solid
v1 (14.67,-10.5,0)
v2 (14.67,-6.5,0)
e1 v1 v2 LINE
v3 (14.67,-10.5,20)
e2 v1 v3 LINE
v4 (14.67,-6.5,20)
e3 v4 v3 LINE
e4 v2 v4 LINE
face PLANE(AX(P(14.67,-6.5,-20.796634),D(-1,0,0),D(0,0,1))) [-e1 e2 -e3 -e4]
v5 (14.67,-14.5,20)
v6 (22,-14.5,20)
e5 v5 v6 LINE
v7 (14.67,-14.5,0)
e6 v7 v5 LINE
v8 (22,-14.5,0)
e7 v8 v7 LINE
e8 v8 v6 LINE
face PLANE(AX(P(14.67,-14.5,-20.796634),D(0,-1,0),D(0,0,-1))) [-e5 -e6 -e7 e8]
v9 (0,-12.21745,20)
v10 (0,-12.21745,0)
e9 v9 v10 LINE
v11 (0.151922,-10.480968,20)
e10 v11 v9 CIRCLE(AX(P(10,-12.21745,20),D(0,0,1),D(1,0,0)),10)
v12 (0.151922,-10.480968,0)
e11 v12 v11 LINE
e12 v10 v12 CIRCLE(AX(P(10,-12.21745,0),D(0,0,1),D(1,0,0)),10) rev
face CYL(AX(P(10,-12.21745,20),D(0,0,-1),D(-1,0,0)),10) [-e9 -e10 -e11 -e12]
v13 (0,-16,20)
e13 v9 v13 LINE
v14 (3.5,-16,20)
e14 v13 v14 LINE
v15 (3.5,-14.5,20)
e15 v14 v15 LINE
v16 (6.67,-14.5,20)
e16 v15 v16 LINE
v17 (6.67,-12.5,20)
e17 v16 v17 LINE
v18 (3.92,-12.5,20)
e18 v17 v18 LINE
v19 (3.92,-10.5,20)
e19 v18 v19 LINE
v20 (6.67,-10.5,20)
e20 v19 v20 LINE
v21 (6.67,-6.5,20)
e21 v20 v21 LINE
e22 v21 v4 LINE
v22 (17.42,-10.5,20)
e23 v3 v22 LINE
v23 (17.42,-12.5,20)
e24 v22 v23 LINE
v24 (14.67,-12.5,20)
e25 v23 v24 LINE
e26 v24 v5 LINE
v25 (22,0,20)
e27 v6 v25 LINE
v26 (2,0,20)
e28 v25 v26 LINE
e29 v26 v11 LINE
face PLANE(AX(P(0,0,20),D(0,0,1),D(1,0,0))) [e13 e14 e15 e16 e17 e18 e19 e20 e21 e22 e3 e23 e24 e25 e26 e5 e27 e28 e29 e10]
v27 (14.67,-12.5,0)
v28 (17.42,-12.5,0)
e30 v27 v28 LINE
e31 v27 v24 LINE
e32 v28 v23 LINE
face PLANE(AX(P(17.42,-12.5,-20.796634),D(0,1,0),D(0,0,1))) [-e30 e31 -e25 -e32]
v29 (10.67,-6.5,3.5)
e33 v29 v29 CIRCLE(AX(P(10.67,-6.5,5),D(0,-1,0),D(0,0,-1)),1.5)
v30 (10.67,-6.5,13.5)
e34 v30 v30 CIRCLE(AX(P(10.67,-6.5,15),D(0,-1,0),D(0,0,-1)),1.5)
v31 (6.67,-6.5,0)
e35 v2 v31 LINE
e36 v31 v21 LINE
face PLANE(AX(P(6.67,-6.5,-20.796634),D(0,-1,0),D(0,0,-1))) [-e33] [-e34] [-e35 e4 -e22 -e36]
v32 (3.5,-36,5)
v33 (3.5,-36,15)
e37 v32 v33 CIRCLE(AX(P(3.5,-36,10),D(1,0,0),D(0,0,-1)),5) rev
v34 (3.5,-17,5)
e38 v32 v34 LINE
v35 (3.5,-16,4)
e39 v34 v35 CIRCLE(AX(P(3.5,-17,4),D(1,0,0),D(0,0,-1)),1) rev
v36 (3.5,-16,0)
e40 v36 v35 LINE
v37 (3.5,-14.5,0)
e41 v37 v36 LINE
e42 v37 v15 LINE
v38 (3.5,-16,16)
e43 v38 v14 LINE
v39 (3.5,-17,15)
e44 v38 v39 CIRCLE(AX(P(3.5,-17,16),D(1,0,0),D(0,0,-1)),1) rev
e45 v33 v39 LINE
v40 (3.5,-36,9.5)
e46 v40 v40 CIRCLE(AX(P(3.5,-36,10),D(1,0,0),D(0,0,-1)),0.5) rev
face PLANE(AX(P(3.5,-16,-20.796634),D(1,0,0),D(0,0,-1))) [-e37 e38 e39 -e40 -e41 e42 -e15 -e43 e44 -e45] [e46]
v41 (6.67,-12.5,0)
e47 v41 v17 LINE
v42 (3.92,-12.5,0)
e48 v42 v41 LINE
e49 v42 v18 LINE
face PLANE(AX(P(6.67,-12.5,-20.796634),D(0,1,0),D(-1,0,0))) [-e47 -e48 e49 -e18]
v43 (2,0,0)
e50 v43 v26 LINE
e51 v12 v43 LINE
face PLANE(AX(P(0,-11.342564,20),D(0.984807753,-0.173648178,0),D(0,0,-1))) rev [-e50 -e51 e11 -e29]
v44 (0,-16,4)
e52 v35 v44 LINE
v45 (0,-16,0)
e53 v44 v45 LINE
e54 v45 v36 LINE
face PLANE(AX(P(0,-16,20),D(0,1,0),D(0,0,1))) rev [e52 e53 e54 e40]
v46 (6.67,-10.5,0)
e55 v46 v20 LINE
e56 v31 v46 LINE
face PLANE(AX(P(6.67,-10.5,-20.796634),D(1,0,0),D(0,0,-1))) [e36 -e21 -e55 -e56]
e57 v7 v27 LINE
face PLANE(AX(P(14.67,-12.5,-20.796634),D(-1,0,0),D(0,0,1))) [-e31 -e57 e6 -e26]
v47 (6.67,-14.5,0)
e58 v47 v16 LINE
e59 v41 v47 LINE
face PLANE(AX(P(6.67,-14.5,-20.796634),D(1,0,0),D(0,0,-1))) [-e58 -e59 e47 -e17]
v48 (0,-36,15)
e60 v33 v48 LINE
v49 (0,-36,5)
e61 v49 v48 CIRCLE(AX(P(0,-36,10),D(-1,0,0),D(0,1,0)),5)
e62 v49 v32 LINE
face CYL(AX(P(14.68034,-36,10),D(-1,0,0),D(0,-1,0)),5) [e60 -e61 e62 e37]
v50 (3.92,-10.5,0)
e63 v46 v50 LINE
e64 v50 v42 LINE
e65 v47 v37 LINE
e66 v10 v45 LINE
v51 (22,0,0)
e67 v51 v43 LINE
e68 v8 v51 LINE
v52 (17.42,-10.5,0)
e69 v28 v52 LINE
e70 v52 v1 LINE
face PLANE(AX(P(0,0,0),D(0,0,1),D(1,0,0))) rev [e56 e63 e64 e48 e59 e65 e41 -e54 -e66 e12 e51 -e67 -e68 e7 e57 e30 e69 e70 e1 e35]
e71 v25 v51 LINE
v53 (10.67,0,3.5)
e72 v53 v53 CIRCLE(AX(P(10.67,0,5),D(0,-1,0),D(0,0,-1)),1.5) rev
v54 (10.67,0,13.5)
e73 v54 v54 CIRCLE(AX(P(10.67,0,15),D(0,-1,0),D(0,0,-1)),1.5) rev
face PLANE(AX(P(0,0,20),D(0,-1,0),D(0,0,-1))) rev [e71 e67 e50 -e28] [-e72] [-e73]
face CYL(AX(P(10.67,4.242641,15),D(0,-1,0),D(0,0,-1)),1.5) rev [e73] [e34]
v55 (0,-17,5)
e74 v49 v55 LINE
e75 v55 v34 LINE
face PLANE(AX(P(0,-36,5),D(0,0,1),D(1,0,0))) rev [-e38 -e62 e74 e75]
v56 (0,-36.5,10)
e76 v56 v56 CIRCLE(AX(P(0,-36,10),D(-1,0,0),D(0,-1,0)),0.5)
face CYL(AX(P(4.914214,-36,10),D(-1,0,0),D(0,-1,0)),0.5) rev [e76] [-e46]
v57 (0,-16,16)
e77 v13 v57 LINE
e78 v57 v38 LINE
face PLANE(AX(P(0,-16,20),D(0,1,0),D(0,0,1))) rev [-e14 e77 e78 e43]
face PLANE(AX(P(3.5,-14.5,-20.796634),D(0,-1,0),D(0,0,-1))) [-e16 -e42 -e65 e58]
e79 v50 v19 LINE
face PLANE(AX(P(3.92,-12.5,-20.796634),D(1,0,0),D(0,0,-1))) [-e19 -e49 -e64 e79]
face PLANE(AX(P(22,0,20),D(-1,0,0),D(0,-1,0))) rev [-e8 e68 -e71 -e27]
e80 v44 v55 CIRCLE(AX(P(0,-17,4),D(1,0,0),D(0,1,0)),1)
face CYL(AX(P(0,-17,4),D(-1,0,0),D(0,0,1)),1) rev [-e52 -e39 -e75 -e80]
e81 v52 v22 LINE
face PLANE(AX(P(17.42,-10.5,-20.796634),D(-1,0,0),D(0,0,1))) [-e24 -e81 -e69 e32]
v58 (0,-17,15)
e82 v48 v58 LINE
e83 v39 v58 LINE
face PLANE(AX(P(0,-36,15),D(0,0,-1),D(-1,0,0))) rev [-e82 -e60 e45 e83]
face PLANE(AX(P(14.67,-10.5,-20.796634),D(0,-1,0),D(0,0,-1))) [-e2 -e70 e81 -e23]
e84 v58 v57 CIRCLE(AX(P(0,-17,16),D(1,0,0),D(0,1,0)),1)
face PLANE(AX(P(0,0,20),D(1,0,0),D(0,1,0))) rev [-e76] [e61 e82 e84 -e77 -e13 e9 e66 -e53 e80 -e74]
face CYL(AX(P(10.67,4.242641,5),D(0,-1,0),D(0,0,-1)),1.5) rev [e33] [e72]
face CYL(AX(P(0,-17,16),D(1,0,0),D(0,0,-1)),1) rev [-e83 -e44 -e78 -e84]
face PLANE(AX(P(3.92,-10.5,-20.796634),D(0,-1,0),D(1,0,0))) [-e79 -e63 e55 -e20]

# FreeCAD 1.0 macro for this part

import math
import FreeCAD as App
import Part
import Sketcher
from FreeCAD import Vector


def edges_at(feature, points):
    """Names of the edges that pass closest to the given points."""
    edges = feature.Shape.Edges
    near = lambda p: min(range(len(edges)), key=lambda i: edges[i].distToShape(Part.Vertex(*p))[0])
    return sorted({f"Edge{near(p) + 1}" for p in points})

doc = App.newDocument("Part")
body = doc.addObject("PartDesign::Body", "Body")

sketch1 = doc.addObject("Sketcher::SketchObject", "Sketch")
body.addObject(sketch1)
sketch1.AttachmentSupport = (doc.XY_Plane, [""])
sketch1.MapMode = "FlatFace"
sketch1.addGeometry([
    Part.LineSegment(Vector(0, 0, 0), Vector(0, -16, 0)),
    Part.LineSegment(Vector(0, -16, 0), Vector(22, -16, 0)),
    Part.LineSegment(Vector(22, -16, 0), Vector(22, 0, 0)),
    Part.LineSegment(Vector(22, 0, 0), Vector(0, 0, 0)),
], False)
sketch1.addConstraint([
    Sketcher.Constraint("Coincident", 0, 2, 1, 1),
    Sketcher.Constraint("Coincident", 1, 2, 2, 1),
    Sketcher.Constraint("Coincident", 2, 2, 3, 1),
    Sketcher.Constraint("Coincident", 3, 2, 0, 1),
    Sketcher.Constraint("Vertical", 0),
    Sketcher.Constraint("Horizontal", 1),
    Sketcher.Constraint("Vertical", 2),
    Sketcher.Constraint("Horizontal", 3),
    Sketcher.Constraint("Coincident", 3, 2, -1, 1),
    Sketcher.Constraint("DistanceX", 1, 1, 1, 2, 22.0),
    Sketcher.Constraint("DistanceY", 0, 2, 0, 1, 16.0),
])
pad1 = doc.addObject("PartDesign::Pad", "Pad")
body.addObject(pad1)
pad1.Profile = sketch1
pad1.Length = 20
doc.recompute()

chamfer = doc.addObject("PartDesign::Chamfer", "Chamfer")
body.addObject(chamfer)
chamfer.Base = (pad1, edges_at(pad1, [(0, 0, 10)]))
chamfer.ChamferType = "Two distances"
chamfer.Size = 2
chamfer.Size2 = 11.342564
chamfer.FlipDirection = True

sketch2 = doc.addObject("Sketcher::SketchObject", "Sketch001")
body.addObject(sketch2)
sketch2.AttachmentSupport = (doc.XY_Plane, [""])
sketch2.MapMode = "FlatFace"
sketch2.AttachmentOffset = App.Placement(Vector(0, 0, 20), App.Rotation())
sketch2.addGeometry([
    Part.LineSegment(Vector(3.5, -14.5, 0), Vector(3.5, -16, 0)),
    Part.LineSegment(Vector(3.5, -16, 0), Vector(22, -16, 0)),
    Part.LineSegment(Vector(22, -16, 0), Vector(22, -14.5, 0)),
    Part.LineSegment(Vector(22, -14.5, 0), Vector(14.7, -14.5, 0)),
    Part.LineSegment(Vector(14.7, -14.5, 0), Vector(14.7, -12.5, 0)),
    Part.LineSegment(Vector(14.7, -12.5, 0), Vector(17.4, -12.5, 0)),
    Part.LineSegment(Vector(17.4, -12.5, 0), Vector(17.4, -10.5, 0)),
    Part.LineSegment(Vector(17.4, -10.5, 0), Vector(14.7, -10.5, 0)),
    Part.LineSegment(Vector(14.7, -10.5, 0), Vector(14.7, -6.5, 0)),
    Part.LineSegment(Vector(14.7, -6.5, 0), Vector(6.7, -6.5, 0)),
    Part.LineSegment(Vector(6.7, -6.5, 0), Vector(6.7, -10.5, 0)),
    Part.LineSegment(Vector(6.7, -10.5, 0), Vector(3.9, -10.5, 0)),
    Part.LineSegment(Vector(3.9, -10.5, 0), Vector(3.9, -12.5, 0)),
    Part.LineSegment(Vector(3.9, -12.5, 0), Vector(6.7, -12.5, 0)),
    Part.LineSegment(Vector(6.7, -12.5, 0), Vector(6.7, -14.5, 0)),
    Part.LineSegment(Vector(6.7, -14.5, 0), Vector(3.5, -14.5, 0)),
], False)
sketch2.addConstraint([
    Sketcher.Constraint("Coincident", 0, 2, 1, 1),
    Sketcher.Constraint("Coincident", 1, 2, 2, 1),
    Sketcher.Constraint("Coincident", 2, 2, 3, 1),
    Sketcher.Constraint("Coincident", 3, 2, 4, 1),
    Sketcher.Constraint("Coincident", 4, 2, 5, 1),
    Sketcher.Constraint("Coincident", 5, 2, 6, 1),
    Sketcher.Constraint("Coincident", 6, 2, 7, 1),
    Sketcher.Constraint("Coincident", 7, 2, 8, 1),
    Sketcher.Constraint("Coincident", 8, 2, 9, 1),
    Sketcher.Constraint("Coincident", 9, 2, 10, 1),
    Sketcher.Constraint("Coincident", 10, 2, 11, 1),
    Sketcher.Constraint("Coincident", 11, 2, 12, 1),
    Sketcher.Constraint("Coincident", 12, 2, 13, 1),
    Sketcher.Constraint("Coincident", 13, 2, 14, 1),
    Sketcher.Constraint("Coincident", 14, 2, 15, 1),
    Sketcher.Constraint("Coincident", 15, 2, 0, 1),
    Sketcher.Constraint("Vertical", 0),
    Sketcher.Constraint("Horizontal", 1),
    Sketcher.Constraint("Vertical", 2),
    Sketcher.Constraint("Horizontal", 3),
    Sketcher.Constraint("Vertical", 4),
    Sketcher.Constraint("Horizontal", 5),
    Sketcher.Constraint("Vertical", 6),
    Sketcher.Constraint("Horizontal", 7),
    Sketcher.Constraint("Vertical", 8),
    Sketcher.Constraint("Horizontal", 9),
    Sketcher.Constraint("Vertical", 10),
    Sketcher.Constraint("Horizontal", 11),
    Sketcher.Constraint("Vertical", 12),
    Sketcher.Constraint("Horizontal", 13),
    Sketcher.Constraint("Vertical", 14),
    Sketcher.Constraint("Horizontal", 15),
    Sketcher.Constraint("Horizontal", 7, 2, 10, 2),
    Sketcher.Constraint("Horizontal", 5, 2, 12, 2),
    Sketcher.Constraint("Horizontal", 3, 2, 14, 2),
    Sketcher.Constraint("Vertical", 4, 2, 7, 2),
    Sketcher.Constraint("Vertical", 10, 2, 13, 2),
    Sketcher.Constraint("Equal", 7, 11),
    Sketcher.Constraint("Equal", 4, 6),
    Sketcher.Constraint("DistanceX", 9, 2, 9, 1, 8.0),
    Sketcher.Constraint("DistanceY", 4, 1, 4, 2, 2.0),
    Sketcher.Constraint("DistanceY", 8, 1, 8, 2, 4.0),
    Sketcher.Constraint("DistanceX", 1, 1, 1, 2, 18.5),
    Sketcher.Constraint("DistanceY", 0, 2, 0, 1, 1.5),
    Sketcher.Constraint("DistanceY", 0, 2, -1, 1, 16.0),
    Sketcher.Constraint("DistanceX", -1, 1, 1, 2, 22.0),
    Sketcher.Constraint("DistanceX", 3, 2, 3, 1, 7.33),
    Sketcher.Constraint("DistanceX", 5, 1, 5, 2, 2.75),
])
pocket1 = doc.addObject("PartDesign::Pocket", "Pocket")
body.addObject(pocket1)
pocket1.Profile = sketch2
pocket1.Length = 20
doc.recompute()

fillet = doc.addObject("PartDesign::Fillet", "Fillet")
body.addObject(fillet)
fillet.Base = (pocket1, edges_at(pocket1, [(0, -11.343, 10)]))
fillet.Radius = 10

sketch3 = doc.addObject("Sketcher::SketchObject", "Sketch002")
body.addObject(sketch3)
sketch3.AttachmentSupport = (doc.XZ_Plane, [""])
sketch3.MapMode = "FlatFace"
sketch3.AttachmentOffset = App.Placement(Vector(0, 0, 16), App.Rotation())
sketch3.addGeometry([
    Part.LineSegment(Vector(0, 15, 0), Vector(0, 5, 0)),
    Part.LineSegment(Vector(0, 5, 0), Vector(3.5, 5, 0)),
    Part.LineSegment(Vector(3.5, 5, 0), Vector(3.5, 15, 0)),
    Part.LineSegment(Vector(3.5, 15, 0), Vector(0, 15, 0)),
], False)
sketch3.addConstraint([
    Sketcher.Constraint("Coincident", 0, 2, 1, 1),
    Sketcher.Constraint("Coincident", 1, 2, 2, 1),
    Sketcher.Constraint("Coincident", 2, 2, 3, 1),
    Sketcher.Constraint("Coincident", 3, 2, 0, 1),
    Sketcher.Constraint("Vertical", 0),
    Sketcher.Constraint("Horizontal", 1),
    Sketcher.Constraint("Vertical", 2),
    Sketcher.Constraint("Horizontal", 3),
    Sketcher.Constraint("PointOnObject", 0, 2, -2),
    Sketcher.Constraint("DistanceY", 0, 2, 0, 1, 10.0),
    Sketcher.Constraint("DistanceX", 1, 1, 1, 2, 3.5),
    Sketcher.Constraint("DistanceY", -1, 1, 0, 2, 5.0),
])
pad2 = doc.addObject("PartDesign::Pad", "Pad001")
body.addObject(pad2)
pad2.Profile = sketch3
pad2.Length = 20
doc.recompute()

fillet2 = doc.addObject("PartDesign::Fillet", "Fillet001")
body.addObject(fillet2)
fillet2.Base = (pad2, edges_at(pad2, [(1.75, -16, 5), (1.75, -16, 15)]))
fillet2.Radius = 1

sketch4 = doc.addObject("Sketcher::SketchObject", "Sketch003")
body.addObject(sketch4)
sketch4.AttachmentSupport = (doc.YZ_Plane, [""])
sketch4.MapMode = "FlatFace"
sketch4.addGeometry([
    Part.LineSegment(Vector(-36, 15, 0), Vector(-36, 5, 0)),
    Part.ArcOfCircle(Part.Circle(Vector(-36, 10, 0), Vector(0, 0, 1), 5), math.radians(90), math.radians(270)),
], False)
sketch4.addConstraint([
    Sketcher.Constraint("Coincident", 0, 1, 1, 1),
    Sketcher.Constraint("Coincident", 1, 2, 0, 2),
    Sketcher.Constraint("Vertical", 0),
    Sketcher.Constraint("Vertical", 1, 3, 0, 1),
    Sketcher.Constraint("Radius", 1, 5.0),
    Sketcher.Constraint("DistanceX", 1, 3, -1, 1, 36.0),
    Sketcher.Constraint("DistanceY", -1, 1, 1, 3, 10.0),
])
pad3 = doc.addObject("PartDesign::Pad", "Pad002")
body.addObject(pad3)
pad3.Profile = sketch4
pad3.Length = 3.5

sketch5 = doc.addObject("Sketcher::SketchObject", "Sketch004")
body.addObject(sketch5)
sketch5.AttachmentSupport = (doc.YZ_Plane, [""])
sketch5.MapMode = "FlatFace"
sketch5.addGeometry(Part.Circle(Vector(-36, 10, 0), Vector(0, 0, 1), 0.5), False)
sketch5.addConstraint([
    Sketcher.Constraint("Diameter", 0, 1.0),
    Sketcher.Constraint("DistanceX", 0, 3, -1, 1, 36.0),
    Sketcher.Constraint("DistanceY", -1, 1, 0, 3, 10.0),
])
pocket2 = doc.addObject("PartDesign::Pocket", "Pocket001")
body.addObject(pocket2)
pocket2.Profile = sketch5
pocket2.Length = 3.5
pocket2.Reversed = True

sketch6 = doc.addObject("Sketcher::SketchObject", "Sketch005")
body.addObject(sketch6)
sketch6.AttachmentSupport = (doc.XZ_Plane, [""])
sketch6.MapMode = "FlatFace"
sketch6.AttachmentOffset = App.Placement(Vector(0, 0, 6.5), App.Rotation())
sketch6.addGeometry([
    Part.Circle(Vector(10.7, 15, 0), Vector(0, 0, 1), 1.5),
    Part.Circle(Vector(10.7, 5, 0), Vector(0, 0, 1), 1.5),
], False)
sketch6.addConstraint([
    Sketcher.Constraint("Equal", 0, 1),
    Sketcher.Constraint("Vertical", 0, 3, 1, 3),
    Sketcher.Constraint("Diameter", 0, 3.0),
    Sketcher.Constraint("DistanceY", -1, 1, 0, 3, 15.0),
    Sketcher.Constraint("DistanceY", -1, 1, 1, 3, 5.0),
    Sketcher.Constraint("DistanceX", -1, 1, 0, 3, 10.67),
])
pocket3 = doc.addObject("PartDesign::Pocket", "Pocket002")
body.addObject(pocket3)
pocket3.Profile = sketch6
pocket3.Length = 6.5

doc.recompute()
